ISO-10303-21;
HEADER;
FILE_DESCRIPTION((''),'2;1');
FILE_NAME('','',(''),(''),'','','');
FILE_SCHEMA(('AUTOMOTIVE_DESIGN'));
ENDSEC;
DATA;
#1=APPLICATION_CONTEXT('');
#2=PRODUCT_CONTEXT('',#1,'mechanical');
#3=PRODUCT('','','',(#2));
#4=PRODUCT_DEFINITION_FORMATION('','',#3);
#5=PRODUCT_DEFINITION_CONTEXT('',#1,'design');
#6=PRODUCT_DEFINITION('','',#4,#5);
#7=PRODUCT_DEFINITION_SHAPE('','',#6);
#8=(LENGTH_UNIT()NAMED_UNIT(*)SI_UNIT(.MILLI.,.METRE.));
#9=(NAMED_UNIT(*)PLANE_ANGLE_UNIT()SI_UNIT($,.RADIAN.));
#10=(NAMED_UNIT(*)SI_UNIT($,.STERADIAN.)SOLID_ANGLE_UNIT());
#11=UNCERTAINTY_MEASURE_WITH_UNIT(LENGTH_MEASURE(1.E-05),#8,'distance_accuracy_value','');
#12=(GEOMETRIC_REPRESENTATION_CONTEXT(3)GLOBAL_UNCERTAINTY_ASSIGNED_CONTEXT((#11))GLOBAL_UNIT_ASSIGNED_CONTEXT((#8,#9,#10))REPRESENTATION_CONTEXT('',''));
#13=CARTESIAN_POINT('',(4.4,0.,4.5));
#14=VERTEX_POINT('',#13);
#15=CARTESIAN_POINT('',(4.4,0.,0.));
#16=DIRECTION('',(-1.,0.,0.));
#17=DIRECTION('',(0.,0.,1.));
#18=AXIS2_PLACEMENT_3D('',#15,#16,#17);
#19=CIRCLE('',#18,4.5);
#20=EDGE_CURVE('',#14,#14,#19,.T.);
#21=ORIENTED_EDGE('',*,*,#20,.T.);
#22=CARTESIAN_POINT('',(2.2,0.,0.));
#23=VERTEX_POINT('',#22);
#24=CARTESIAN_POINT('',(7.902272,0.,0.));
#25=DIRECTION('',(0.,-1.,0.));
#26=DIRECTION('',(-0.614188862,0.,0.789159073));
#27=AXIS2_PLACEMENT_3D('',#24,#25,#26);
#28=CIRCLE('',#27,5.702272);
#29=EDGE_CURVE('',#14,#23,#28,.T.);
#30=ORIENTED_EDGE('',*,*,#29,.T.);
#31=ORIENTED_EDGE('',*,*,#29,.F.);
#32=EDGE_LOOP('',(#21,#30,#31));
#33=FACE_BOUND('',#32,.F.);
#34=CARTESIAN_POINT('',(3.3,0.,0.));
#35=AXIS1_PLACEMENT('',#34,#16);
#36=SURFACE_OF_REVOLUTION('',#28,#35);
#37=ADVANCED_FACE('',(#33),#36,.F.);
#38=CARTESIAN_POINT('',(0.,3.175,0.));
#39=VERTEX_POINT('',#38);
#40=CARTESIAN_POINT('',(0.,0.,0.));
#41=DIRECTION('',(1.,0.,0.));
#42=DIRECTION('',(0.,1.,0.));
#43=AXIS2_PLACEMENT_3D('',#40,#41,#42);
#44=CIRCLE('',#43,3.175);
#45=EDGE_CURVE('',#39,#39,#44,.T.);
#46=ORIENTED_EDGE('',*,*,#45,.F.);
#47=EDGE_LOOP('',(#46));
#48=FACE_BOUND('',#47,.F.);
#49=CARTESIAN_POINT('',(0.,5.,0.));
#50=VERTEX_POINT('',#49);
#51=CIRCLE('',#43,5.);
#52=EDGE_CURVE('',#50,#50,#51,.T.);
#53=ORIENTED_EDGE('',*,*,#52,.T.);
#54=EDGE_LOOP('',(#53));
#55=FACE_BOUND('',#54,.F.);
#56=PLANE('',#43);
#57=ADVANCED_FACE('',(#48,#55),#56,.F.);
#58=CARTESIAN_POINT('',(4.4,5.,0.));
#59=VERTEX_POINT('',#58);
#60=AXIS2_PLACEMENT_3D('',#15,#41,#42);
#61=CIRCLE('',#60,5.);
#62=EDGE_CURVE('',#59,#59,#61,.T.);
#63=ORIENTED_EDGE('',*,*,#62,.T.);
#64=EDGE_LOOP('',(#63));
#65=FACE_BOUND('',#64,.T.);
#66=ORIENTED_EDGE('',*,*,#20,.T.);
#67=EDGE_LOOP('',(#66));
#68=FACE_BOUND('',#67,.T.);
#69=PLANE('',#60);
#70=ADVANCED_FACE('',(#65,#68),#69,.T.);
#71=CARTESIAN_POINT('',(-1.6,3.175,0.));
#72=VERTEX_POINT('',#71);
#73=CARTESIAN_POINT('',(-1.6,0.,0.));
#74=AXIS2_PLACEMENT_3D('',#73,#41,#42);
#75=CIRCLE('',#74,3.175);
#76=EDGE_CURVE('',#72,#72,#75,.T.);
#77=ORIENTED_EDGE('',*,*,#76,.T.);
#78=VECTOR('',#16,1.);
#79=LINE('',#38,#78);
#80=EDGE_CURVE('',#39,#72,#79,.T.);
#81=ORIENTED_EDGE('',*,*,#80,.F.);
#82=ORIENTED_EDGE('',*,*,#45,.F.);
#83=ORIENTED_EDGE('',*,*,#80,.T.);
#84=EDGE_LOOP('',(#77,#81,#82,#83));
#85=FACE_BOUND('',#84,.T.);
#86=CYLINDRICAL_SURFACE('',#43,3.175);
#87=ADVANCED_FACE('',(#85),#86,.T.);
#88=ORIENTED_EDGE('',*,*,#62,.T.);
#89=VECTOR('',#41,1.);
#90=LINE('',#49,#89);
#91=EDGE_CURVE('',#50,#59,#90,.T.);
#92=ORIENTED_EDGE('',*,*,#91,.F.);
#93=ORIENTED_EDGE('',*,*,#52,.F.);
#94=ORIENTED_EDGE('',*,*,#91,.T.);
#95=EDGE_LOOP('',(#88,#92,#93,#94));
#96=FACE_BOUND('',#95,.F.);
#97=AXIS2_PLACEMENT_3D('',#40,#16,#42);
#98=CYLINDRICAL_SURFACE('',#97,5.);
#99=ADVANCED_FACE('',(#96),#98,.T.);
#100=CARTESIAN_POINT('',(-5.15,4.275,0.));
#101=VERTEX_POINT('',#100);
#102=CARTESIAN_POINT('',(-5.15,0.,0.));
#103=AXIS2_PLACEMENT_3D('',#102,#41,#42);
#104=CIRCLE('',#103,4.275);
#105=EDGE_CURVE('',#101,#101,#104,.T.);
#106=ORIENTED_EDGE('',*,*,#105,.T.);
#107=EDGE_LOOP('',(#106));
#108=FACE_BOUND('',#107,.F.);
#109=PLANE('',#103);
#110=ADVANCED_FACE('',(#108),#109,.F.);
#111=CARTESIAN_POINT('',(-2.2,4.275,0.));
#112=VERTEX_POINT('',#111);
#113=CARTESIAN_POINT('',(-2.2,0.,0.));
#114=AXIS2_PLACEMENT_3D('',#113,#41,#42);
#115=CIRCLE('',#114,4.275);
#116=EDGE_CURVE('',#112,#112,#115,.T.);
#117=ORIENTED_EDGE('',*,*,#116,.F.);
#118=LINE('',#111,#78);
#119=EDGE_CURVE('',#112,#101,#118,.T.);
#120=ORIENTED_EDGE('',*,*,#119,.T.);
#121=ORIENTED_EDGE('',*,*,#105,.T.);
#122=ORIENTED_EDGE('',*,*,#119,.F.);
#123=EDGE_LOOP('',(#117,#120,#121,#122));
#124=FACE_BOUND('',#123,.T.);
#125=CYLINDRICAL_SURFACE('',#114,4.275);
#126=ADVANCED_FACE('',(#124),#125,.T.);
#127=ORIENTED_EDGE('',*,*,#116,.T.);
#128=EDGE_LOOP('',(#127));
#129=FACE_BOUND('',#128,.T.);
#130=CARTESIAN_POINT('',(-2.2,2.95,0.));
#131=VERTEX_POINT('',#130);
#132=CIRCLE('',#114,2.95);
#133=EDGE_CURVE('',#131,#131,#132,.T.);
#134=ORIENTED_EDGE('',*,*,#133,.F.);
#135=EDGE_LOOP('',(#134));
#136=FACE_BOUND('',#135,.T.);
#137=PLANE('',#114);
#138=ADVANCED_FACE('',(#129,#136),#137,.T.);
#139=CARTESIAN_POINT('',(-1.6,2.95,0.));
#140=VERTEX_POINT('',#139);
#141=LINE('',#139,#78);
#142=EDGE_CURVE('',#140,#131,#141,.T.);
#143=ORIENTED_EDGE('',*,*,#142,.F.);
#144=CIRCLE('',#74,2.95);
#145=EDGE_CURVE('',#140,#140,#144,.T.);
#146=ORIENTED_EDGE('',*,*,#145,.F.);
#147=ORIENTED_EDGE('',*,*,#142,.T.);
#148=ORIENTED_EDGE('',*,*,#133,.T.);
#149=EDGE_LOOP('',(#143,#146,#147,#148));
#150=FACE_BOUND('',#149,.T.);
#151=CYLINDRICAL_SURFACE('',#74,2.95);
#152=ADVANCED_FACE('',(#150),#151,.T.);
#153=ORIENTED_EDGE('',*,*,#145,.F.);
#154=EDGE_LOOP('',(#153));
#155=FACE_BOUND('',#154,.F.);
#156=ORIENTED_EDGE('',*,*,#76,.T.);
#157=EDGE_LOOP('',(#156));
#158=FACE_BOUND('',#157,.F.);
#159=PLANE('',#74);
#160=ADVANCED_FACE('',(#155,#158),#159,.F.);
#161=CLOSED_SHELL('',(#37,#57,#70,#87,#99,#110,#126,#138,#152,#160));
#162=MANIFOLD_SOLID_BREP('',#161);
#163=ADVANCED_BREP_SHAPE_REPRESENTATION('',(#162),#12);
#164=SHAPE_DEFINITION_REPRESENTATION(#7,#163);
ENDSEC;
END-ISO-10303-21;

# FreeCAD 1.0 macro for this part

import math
import FreeCAD as App
import Part
import Sketcher
from FreeCAD import Vector

doc = App.newDocument("Part")
body = doc.addObject("PartDesign::Body", "Body")

# Sketch on YZ plane
sketch1 = body.newObject("Sketcher::SketchObject", "Sketch")
sketch1.AttachmentSupport = (doc.getObject("YZ_Plane"), [""])
sketch1.MapMode = "FlatFace"
sketch1.addGeometry(Part.Circle(Vector(0, 0, 0), Vector(0, 0, 1), 5), False)
sketch1.addConstraint(Sketcher.Constraint("Coincident", 0, 3, -1, 1))
sketch1.addConstraint(Sketcher.Constraint("Diameter", 0, 10.0))
pad1 = body.newObject("PartDesign::Pad", "Pad")
pad1.Profile = sketch1
pad1.Length = 4.4

# Sketch on YZ plane
sketch2 = body.newObject("Sketcher::SketchObject", "Sketch001")
sketch2.AttachmentSupport = (doc.getObject("YZ_Plane"), [""])
sketch2.MapMode = "FlatFace"
sketch2.addGeometry(Part.Circle(Vector(0, 0, 0), Vector(0, 0, 1), 3.2), False)
sketch2.addConstraint(Sketcher.Constraint("Coincident", 0, 3, -1, 1))
sketch2.addConstraint(Sketcher.Constraint("Diameter", 0, 6.35))
pad2 = body.newObject("PartDesign::Pad", "Pad001")
pad2.Profile = sketch2
pad2.Length = 1.6
pad2.Reversed = True

# Sketch on YZ plane
sketch3 = body.newObject("Sketcher::SketchObject", "Sketch002")
sketch3.AttachmentSupport = (doc.getObject("YZ_Plane"), [""])
sketch3.MapMode = "FlatFace"
sketch3.AttachmentOffset = App.Placement(Vector(0, 0, -1.6), App.Rotation())
sketch3.addGeometry(Part.Circle(Vector(0, 0, 0), Vector(0, 0, 1), 3), False)
sketch3.addConstraint(Sketcher.Constraint("Coincident", 0, 3, -1, 1))
sketch3.addConstraint(Sketcher.Constraint("Diameter", 0, 5.9))
pad3 = body.newObject("PartDesign::Pad", "Pad002")
pad3.Profile = sketch3
pad3.Length = 0.6
pad3.Reversed = True

# Sketch on YZ plane
sketch4 = body.newObject("Sketcher::SketchObject", "Sketch003")
sketch4.AttachmentSupport = (doc.getObject("YZ_Plane"), [""])
sketch4.MapMode = "FlatFace"
sketch4.AttachmentOffset = App.Placement(Vector(0, 0, -2.2), App.Rotation())
sketch4.addGeometry(Part.Circle(Vector(0, 0, 0), Vector(0, 0, 1), 4.3), False)
sketch4.addConstraint(Sketcher.Constraint("Coincident", 0, 3, -1, 1))
sketch4.addConstraint(Sketcher.Constraint("Diameter", 0, 8.55))
pad4 = body.newObject("PartDesign::Pad", "Pad003")
pad4.Profile = sketch4
pad4.Length = 2.95
pad4.Reversed = True

# Sketch on XZ plane
sketch5 = body.newObject("Sketcher::SketchObject", "Sketch004")
sketch5.AttachmentSupport = (doc.getObject("XZ_Plane"), [""])
sketch5.MapMode = "FlatFace"
sketch5.addGeometry(Part.LineSegment(Vector(4.4, 0, 0), Vector(4.4, 4.5, 0)), False)
sketch5.addGeometry(Part.ArcOfCircle(Part.Circle(Vector(7.9, 0, 0), Vector(0, 0, 1), 5.7), math.radians(128), math.radians(180)), False)
sketch5.addGeometry(Part.LineSegment(Vector(2.2, 0, 0), Vector(4.4, 0, 0)), False)
sketch5.addConstraint(Sketcher.Constraint("Coincident", 0, 2, 1, 1))
sketch5.addConstraint(Sketcher.Constraint("Coincident", 1, 2, 2, 1))
sketch5.addConstraint(Sketcher.Constraint("Coincident", 2, 2, 0, 1))
sketch5.addConstraint(Sketcher.Constraint("Vertical", 0))
sketch5.addConstraint(Sketcher.Constraint("Horizontal", 2))
sketch5.addConstraint(Sketcher.Constraint("PointOnObject", 1, 3, -1))
sketch5.addConstraint(Sketcher.Constraint("PointOnObject", 1, 2, -1))
sketch5.addConstraint(Sketcher.Constraint("DistanceX", 2, 1, 2, 2, 2.2))
sketch5.addConstraint(Sketcher.Constraint("DistanceY", 0, 1, 0, 2, 4.5))
sketch5.addConstraint(Sketcher.Constraint("DistanceX", -1, 1, 0, 2, 4.4))
groove = body.newObject("PartDesign::Groove", "Groove")
groove.Profile = sketch5
groove.ReferenceAxis = (sketch5, ["H_Axis"])
groove.Angle = 360

doc.recompute()
